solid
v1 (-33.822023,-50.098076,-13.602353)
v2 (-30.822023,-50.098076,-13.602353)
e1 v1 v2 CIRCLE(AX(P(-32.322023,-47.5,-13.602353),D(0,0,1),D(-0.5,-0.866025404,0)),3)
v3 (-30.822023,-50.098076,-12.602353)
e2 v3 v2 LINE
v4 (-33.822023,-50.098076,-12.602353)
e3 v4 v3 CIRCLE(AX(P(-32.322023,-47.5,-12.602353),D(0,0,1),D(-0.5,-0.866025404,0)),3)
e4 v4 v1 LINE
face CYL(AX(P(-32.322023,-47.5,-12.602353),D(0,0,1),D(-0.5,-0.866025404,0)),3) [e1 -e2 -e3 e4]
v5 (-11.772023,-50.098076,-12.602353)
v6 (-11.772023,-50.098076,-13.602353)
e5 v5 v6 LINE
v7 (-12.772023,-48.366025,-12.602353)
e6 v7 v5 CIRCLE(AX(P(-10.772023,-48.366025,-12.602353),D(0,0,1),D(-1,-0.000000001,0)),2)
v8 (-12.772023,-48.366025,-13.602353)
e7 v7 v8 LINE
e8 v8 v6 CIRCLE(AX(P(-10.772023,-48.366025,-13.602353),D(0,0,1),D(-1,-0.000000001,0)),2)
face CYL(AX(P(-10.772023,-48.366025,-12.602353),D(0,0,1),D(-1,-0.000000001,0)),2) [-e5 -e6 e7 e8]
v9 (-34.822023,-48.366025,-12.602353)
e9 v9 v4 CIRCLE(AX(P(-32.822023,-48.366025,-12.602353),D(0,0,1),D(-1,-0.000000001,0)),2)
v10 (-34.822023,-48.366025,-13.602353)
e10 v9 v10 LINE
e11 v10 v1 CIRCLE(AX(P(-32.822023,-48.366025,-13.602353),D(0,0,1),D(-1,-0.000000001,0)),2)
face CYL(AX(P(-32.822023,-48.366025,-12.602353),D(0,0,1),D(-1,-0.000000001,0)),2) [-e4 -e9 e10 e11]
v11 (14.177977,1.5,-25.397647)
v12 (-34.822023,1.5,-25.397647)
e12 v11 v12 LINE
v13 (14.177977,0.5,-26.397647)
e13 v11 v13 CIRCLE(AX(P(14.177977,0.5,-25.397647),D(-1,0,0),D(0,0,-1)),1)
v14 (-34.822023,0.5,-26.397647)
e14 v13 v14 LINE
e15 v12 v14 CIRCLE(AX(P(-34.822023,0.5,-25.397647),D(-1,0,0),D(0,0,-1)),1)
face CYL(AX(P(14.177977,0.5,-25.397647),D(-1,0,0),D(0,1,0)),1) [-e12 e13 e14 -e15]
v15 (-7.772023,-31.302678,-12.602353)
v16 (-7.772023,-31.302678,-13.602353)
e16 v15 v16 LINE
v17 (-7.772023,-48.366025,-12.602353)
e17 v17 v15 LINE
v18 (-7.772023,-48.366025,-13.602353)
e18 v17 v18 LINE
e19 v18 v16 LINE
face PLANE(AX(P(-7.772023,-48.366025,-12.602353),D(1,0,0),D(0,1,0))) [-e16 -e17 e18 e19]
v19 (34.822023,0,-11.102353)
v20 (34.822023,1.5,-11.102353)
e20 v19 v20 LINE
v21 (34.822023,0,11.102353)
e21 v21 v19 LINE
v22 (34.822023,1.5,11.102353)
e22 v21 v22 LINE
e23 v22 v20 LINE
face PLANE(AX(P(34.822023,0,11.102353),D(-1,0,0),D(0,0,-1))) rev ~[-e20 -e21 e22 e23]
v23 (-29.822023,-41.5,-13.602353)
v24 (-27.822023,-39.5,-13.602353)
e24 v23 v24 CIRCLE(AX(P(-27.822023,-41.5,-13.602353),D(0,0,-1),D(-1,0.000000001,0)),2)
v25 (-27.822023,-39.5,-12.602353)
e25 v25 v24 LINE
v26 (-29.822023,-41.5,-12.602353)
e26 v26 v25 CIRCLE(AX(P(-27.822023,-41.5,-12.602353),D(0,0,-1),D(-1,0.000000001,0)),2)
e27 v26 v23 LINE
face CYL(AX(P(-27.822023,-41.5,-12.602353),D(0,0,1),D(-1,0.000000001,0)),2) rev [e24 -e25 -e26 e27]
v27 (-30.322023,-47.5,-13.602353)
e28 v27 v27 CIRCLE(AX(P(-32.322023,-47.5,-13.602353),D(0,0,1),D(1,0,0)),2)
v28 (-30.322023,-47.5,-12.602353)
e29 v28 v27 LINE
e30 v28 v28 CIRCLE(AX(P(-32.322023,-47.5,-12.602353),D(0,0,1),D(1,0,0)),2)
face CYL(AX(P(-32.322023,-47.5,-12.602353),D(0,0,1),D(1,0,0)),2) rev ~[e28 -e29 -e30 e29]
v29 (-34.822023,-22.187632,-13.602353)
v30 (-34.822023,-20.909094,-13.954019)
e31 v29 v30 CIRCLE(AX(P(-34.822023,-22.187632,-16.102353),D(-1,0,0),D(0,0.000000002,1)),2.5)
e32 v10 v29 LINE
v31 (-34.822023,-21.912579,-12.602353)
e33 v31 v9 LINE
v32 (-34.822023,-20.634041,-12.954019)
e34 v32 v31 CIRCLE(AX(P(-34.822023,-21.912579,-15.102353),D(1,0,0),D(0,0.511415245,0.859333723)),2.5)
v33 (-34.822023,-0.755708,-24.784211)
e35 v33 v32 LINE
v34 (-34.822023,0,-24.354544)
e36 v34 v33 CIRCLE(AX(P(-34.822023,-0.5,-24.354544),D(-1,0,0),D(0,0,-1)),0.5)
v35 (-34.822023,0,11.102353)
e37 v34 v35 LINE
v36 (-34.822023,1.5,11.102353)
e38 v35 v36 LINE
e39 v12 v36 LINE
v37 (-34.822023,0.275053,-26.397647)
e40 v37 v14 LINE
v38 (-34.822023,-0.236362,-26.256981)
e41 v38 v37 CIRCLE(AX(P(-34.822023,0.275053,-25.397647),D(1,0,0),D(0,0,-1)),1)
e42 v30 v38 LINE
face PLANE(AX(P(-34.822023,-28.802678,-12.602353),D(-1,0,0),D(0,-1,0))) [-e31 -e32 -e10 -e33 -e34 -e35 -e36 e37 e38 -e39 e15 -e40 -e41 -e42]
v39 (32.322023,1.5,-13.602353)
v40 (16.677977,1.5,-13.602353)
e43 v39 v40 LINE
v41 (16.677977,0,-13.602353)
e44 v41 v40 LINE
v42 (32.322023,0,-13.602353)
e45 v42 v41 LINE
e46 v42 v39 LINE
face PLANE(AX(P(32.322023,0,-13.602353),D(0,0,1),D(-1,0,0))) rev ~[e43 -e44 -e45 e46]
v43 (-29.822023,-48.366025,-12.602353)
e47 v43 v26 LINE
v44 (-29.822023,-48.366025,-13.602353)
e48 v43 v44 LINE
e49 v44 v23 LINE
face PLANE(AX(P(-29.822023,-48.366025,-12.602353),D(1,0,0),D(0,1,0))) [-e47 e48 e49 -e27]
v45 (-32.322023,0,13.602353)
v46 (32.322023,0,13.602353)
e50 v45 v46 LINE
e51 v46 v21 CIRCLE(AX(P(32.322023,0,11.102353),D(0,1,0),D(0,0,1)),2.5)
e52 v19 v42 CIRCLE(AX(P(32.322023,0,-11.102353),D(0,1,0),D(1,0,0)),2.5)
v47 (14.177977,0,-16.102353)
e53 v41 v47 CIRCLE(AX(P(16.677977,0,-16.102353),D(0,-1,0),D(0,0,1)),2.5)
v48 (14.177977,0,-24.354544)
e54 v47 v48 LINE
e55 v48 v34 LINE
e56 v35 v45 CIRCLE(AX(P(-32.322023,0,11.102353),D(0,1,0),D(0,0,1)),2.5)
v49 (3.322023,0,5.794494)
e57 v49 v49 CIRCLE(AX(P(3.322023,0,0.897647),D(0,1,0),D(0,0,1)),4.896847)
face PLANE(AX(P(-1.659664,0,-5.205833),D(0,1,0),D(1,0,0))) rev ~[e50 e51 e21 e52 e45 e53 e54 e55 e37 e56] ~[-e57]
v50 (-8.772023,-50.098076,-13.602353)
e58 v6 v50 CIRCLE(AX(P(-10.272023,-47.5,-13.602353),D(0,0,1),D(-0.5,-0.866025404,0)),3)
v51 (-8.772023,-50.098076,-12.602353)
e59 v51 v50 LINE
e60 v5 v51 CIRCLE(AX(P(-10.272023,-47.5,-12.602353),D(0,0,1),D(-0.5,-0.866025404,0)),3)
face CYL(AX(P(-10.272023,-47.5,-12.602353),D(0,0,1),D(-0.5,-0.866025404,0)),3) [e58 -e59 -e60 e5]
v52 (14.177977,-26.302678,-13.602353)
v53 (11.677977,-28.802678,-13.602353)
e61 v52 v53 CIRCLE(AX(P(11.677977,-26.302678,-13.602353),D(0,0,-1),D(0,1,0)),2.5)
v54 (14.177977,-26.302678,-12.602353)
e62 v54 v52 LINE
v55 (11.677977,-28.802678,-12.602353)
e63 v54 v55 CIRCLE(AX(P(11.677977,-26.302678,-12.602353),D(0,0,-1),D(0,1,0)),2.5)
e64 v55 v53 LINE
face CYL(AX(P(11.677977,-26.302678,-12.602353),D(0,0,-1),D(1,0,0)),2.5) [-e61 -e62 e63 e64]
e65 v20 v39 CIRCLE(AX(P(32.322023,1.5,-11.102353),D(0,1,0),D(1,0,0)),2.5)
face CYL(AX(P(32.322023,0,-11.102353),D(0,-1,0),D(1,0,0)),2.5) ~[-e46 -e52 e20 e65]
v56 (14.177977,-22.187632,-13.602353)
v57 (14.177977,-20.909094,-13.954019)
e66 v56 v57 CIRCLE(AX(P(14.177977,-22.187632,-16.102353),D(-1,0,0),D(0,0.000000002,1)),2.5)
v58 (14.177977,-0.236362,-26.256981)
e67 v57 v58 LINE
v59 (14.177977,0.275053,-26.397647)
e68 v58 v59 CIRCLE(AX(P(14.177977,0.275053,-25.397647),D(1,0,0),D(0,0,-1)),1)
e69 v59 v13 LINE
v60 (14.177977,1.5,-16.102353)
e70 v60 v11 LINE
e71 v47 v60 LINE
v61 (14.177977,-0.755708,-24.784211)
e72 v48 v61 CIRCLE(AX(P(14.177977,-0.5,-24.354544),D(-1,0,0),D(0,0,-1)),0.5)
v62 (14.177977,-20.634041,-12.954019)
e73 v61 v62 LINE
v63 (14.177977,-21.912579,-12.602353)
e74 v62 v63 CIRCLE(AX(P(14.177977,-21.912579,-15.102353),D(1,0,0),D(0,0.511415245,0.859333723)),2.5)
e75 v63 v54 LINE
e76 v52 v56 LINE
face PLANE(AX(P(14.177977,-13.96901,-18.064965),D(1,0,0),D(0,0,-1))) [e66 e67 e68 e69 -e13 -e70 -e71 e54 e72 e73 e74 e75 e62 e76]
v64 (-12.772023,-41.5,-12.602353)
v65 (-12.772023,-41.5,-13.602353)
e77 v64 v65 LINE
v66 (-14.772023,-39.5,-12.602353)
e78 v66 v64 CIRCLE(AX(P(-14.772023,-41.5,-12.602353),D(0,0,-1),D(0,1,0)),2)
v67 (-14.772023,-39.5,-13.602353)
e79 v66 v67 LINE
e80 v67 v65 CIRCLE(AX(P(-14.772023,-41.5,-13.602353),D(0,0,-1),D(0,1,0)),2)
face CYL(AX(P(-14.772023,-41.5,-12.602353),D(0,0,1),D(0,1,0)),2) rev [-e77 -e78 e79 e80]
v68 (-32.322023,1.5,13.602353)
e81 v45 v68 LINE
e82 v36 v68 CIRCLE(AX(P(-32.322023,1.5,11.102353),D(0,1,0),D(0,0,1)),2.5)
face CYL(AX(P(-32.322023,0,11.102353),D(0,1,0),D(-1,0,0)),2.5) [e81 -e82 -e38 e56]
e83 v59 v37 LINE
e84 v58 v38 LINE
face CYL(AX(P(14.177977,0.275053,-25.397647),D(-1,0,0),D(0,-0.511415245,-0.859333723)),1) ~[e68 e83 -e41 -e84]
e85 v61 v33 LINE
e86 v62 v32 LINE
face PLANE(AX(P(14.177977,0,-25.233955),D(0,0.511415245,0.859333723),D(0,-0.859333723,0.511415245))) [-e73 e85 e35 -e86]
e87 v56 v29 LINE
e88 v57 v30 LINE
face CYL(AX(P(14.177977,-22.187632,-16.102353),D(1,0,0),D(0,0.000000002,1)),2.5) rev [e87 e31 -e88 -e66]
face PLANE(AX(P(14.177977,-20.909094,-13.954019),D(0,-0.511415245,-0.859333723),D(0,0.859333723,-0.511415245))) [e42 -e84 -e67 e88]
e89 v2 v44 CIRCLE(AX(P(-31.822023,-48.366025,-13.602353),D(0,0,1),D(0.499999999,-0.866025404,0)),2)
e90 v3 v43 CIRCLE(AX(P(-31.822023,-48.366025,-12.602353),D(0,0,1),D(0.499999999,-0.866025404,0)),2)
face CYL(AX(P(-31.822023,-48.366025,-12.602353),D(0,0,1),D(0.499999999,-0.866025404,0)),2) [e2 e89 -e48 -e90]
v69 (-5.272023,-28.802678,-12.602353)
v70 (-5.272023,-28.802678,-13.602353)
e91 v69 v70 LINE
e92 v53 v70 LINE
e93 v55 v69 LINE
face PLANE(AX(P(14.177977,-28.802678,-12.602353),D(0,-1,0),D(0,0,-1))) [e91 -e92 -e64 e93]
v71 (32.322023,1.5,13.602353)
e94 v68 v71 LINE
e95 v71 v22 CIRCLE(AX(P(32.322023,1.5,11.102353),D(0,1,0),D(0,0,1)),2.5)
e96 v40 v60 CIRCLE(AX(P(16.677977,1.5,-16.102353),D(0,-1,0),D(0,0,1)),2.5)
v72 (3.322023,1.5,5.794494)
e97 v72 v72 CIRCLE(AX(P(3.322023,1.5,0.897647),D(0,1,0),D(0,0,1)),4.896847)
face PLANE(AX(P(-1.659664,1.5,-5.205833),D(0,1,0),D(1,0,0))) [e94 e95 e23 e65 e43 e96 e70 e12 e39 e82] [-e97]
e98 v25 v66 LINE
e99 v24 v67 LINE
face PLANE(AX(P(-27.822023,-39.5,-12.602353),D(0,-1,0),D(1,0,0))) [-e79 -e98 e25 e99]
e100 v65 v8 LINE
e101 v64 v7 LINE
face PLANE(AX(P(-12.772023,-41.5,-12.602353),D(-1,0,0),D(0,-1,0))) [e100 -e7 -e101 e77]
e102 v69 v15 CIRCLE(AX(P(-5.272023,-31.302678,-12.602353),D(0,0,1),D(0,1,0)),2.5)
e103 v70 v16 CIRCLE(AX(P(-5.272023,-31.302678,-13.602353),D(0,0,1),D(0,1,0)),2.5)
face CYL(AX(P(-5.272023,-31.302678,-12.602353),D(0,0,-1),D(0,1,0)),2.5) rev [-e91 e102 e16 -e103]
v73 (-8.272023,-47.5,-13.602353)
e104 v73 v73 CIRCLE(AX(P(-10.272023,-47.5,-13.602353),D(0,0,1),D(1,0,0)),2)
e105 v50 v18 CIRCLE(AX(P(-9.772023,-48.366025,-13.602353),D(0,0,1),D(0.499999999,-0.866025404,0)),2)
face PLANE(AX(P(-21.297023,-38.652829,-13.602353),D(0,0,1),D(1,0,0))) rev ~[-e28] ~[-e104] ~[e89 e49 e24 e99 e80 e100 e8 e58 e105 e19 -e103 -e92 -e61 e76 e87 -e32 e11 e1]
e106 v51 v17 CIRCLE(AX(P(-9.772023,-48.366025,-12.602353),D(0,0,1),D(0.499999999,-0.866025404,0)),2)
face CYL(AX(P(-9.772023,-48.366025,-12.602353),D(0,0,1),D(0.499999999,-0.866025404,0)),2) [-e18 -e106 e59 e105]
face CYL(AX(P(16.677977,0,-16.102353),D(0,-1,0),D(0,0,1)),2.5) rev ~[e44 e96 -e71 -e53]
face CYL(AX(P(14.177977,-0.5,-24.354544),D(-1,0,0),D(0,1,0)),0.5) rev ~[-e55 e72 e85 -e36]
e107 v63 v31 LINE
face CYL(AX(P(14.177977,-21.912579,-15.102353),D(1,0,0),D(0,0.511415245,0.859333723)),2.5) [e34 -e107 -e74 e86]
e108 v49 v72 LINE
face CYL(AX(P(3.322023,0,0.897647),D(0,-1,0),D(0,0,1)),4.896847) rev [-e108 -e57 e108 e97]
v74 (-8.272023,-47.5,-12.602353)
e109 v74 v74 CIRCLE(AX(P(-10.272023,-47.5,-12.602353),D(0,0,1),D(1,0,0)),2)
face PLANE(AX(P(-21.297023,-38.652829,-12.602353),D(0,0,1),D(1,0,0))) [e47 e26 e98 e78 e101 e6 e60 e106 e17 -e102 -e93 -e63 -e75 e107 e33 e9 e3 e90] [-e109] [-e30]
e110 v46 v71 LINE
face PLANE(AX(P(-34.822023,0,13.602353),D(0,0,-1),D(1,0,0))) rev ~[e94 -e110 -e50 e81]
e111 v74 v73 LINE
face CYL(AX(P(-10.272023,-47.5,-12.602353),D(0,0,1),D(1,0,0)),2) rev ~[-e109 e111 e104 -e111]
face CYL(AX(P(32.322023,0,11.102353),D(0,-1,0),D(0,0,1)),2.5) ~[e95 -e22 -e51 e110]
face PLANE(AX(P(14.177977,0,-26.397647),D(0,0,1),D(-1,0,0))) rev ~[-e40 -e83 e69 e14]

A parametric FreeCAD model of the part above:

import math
import FreeCAD as App
import Part
import Sketcher
from FreeCAD import Vector


def edges_at(feature, points):
    """Names of the edges that pass closest to the given points."""
    edges = feature.Shape.Edges
    near = lambda p: min(range(len(edges)), key=lambda i: edges[i].distToShape(Part.Vertex(*p))[0])
    return sorted({f"Edge{near(p) + 1}" for p in points})

doc = App.newDocument("Part")
body = doc.addObject("PartDesign::Body", "Body")

sketch1 = body.newObject("Sketcher::SketchObject", "Sketch")
sketch1.AttachmentSupport = (doc.getObject("XZ_Plane"), [""])
sketch1.MapMode = "FlatFace"
sketch1.addGeometry(Part.ArcOfCircle(Part.Circle(Vector(32.3, 11.1, 0), Vector(0, 0, 1), 2.5), math.radians(0), math.radians(90)), False)
sketch1.addGeometry(Part.LineSegment(Vector(34.8, 11.1, 0), Vector(34.8, -11.1, 0)), False)
sketch1.addGeometry(Part.ArcOfCircle(Part.Circle(Vector(32.3, -11.1, 0), Vector(0, 0, 1), 2.5), math.radians(-90), math.radians(0)), False)
sketch1.addGeometry(Part.LineSegment(Vector(32.3, -13.6, 0), Vector(16.7, -13.6, 0)), False)
sketch1.addGeometry(Part.ArcOfCircle(Part.Circle(Vector(16.7, -16.1, 0), Vector(0, 0, 1), 2.5), math.radians(90), math.radians(180)), False)
sketch1.addGeometry(Part.LineSegment(Vector(14.2, -16.1, 0), Vector(14.2, -26.4, 0)), False)
sketch1.addGeometry(Part.LineSegment(Vector(14.2, -26.4, 0), Vector(-34.8, -26.4, 0)), False)
sketch1.addGeometry(Part.LineSegment(Vector(-34.8, -26.4, 0), Vector(-34.8, 13.6, 0)), False)
sketch1.addGeometry(Part.LineSegment(Vector(-34.8, 13.6, 0), Vector(32.3, 13.6, 0)), False)
sketch1.addGeometry(Part.Circle(Vector(3.3, 0.9, 0), Vector(0, 0, 1), 4.9), False)
sketch1.addConstraint(Sketcher.Constraint("Tangent", 0, 1, 1, 1))
sketch1.addConstraint(Sketcher.Constraint("Tangent", 1, 2, 2, 2))
sketch1.addConstraint(Sketcher.Constraint("Tangent", 2, 1, 3, 1))
sketch1.addConstraint(Sketcher.Constraint("Tangent", 3, 2, 4, 1))
sketch1.addConstraint(Sketcher.Constraint("Tangent", 4, 2, 5, 1))
sketch1.addConstraint(Sketcher.Constraint("Coincident", 5, 2, 6, 1))
sketch1.addConstraint(Sketcher.Constraint("Coincident", 6, 2, 7, 1))
sketch1.addConstraint(Sketcher.Constraint("Coincident", 7, 2, 8, 1))
sketch1.addConstraint(Sketcher.Constraint("Tangent", 8, 2, 0, 2))
sketch1.addConstraint(Sketcher.Constraint("Vertical", 1))
sketch1.addConstraint(Sketcher.Constraint("Horizontal", 3))
sketch1.addConstraint(Sketcher.Constraint("Vertical", 5))
sketch1.addConstraint(Sketcher.Constraint("Horizontal", 6))
sketch1.addConstraint(Sketcher.Constraint("Vertical", 7))
sketch1.addConstraint(Sketcher.Constraint("Horizontal", 8))
sketch1.addConstraint(Sketcher.Constraint("Equal", 0, 2))
sketch1.addConstraint(Sketcher.Constraint("Equal", 2, 4))
sketch1.addConstraint(Sketcher.Constraint("Radius", 0, 2.5))
sketch1.addConstraint(Sketcher.Constraint("DistanceX", 6, 2, 6, 1, 49.0))
sketch1.addConstraint(Sketcher.Constraint("DistanceY", 7, 1, 7, 2, 40.0))
sketch1.addConstraint(Sketcher.Constraint("DistanceY", 4, 3, 9, 3, 17.0))
sketch1.addConstraint(Sketcher.Constraint("DistanceX", 9, 3, 0, 3, 29.0))
sketch1.addConstraint(Sketcher.Constraint("Diameter", 9, 9.793694))
sketch1.addConstraint(Sketcher.Constraint("DistanceX", 3, 2, 3, 1, 15.644047))
sketch1.addConstraint(Sketcher.Constraint("DistanceY", 1, 2, 1, 1, 22.204706))
sketch1.addConstraint(Sketcher.Constraint("DistanceX", -1, 1, 0, 3, 32.322023))
sketch1.addConstraint(Sketcher.Constraint("DistanceY", -1, 1, 0, 3, 11.102353))
pad1 = body.newObject("PartDesign::Pad", "Pad")
pad1.Profile = sketch1
pad1.Length = 1.5
pad1.Reversed = True

sketch2 = body.newObject("Sketcher::SketchObject", "Sketch001")
sketch2.AttachmentSupport = (doc.getObject("YZ_Plane"), [""])
sketch2.MapMode = "FlatFace"
sketch2.AttachmentOffset = App.Placement(Vector(0, 0, 14.177977), App.Rotation())
sketch2.addGeometry(Part.LineSegment(Vector(0, -25.2, 0), Vector(-20.6, -13, 0)), False)
sketch2.addGeometry(Part.ArcOfCircle(Part.Circle(Vector(-21.9, -15.1, 0), Vector(0, 0, 1), 2.5), math.radians(59), math.radians(90)), False)
sketch2.addGeometry(Part.LineSegment(Vector(-21.9, -12.6, 0), Vector(-28.8, -12.6, 0)), False)
sketch2.addGeometry(Part.LineSegment(Vector(-28.8, -12.6, 0), Vector(-28.8, -13.6, 0)), False)
sketch2.addGeometry(Part.LineSegment(Vector(-28.8, -13.6, 0), Vector(-22.2, -13.6, 0)), False)
sketch2.addGeometry(Part.ArcOfCircle(Part.Circle(Vector(-22.2, -16.1, 0), Vector(0, 0, 1), 2.5), math.radians(59), math.radians(90)), False)
sketch2.addGeometry(Part.LineSegment(Vector(-20.9, -14, 0), Vector(0, -26.4, 0)), False)
sketch2.addGeometry(Part.LineSegment(Vector(0, -26.4, 0), Vector(0, -25.2, 0)), False)
sketch2.addConstraint(Sketcher.Constraint("Tangent", 0, 2, 1, 1))
sketch2.addConstraint(Sketcher.Constraint("Tangent", 1, 2, 2, 1))
sketch2.addConstraint(Sketcher.Constraint("Coincident", 2, 2, 3, 1))
sketch2.addConstraint(Sketcher.Constraint("Coincident", 3, 2, 4, 1))
sketch2.addConstraint(Sketcher.Constraint("Tangent", 4, 2, 5, 2))
sketch2.addConstraint(Sketcher.Constraint("Tangent", 5, 1, 6, 1))
sketch2.addConstraint(Sketcher.Constraint("Coincident", 6, 2, 7, 1))
sketch2.addConstraint(Sketcher.Constraint("Coincident", 7, 2, 0, 1))
sketch2.addConstraint(Sketcher.Constraint("Horizontal", 2))
sketch2.addConstraint(Sketcher.Constraint("Vertical", 3))
sketch2.addConstraint(Sketcher.Constraint("Horizontal", 4))
sketch2.addConstraint(Sketcher.Constraint("Vertical", 7))
sketch2.addConstraint(Sketcher.Constraint("Equal", 1, 5))
sketch2.addConstraint(Sketcher.Constraint("PointOnObject", 6, 2, -2))
sketch2.addConstraint(Sketcher.Constraint("Parallel", 0, 6))
sketch2.addConstraint(Sketcher.Constraint("Radius", 1, 2.5))
sketch2.addConstraint(Sketcher.Constraint("DistanceY", 3, 2, 3, 1, 1.0))
sketch2.addConstraint(Sketcher.Constraint("DistanceX", 2, 2, 2, 1, 6.890099))
sketch2.addConstraint(Sketcher.Constraint("DistanceY", 7, 2, 5, 3, 9.131602))
sketch2.addConstraint(Sketcher.Constraint("Distance", 6, 24.331751))
sketch2.addConstraint(Sketcher.Constraint("DistanceX", 4, 1, 4, 2, 6.615046))
sketch2.addConstraint(Sketcher.Constraint("DistanceY", 0, 2, -1, 1, 12.954019))
pad2 = body.newObject("PartDesign::Pad", "Pad001")
pad2.Profile = sketch2
pad2.Length = 49
pad2.Reversed = True
doc.recompute()

fillet = body.newObject("PartDesign::Fillet", "Fillet")
fillet.Base = (pad2, edges_at(pad2, [(-10.322, 0, -26.398), (-10.322, 1.5, -26.398)]))
fillet.Radius = 1
doc.recompute()

fillet2 = body.newObject("PartDesign::Fillet", "Fillet001")
fillet2.Base = (fillet, edges_at(fillet, [(-10.322, 0, -25.234)]))
fillet2.Radius = 0.5

sketch3 = body.newObject("Sketcher::SketchObject", "Sketch002")
sketch3.AttachmentSupport = (doc.getObject("XY_Plane"), [""])
sketch3.MapMode = "FlatFace"
sketch3.AttachmentOffset = App.Placement(Vector(0, 0, -12.602353), App.Rotation())
sketch3.addGeometry(Part.LineSegment(Vector(-27.8, -39.5, 0), Vector(-14.8, -39.5, 0)), False)
sketch3.addGeometry(Part.ArcOfCircle(Part.Circle(Vector(-14.8, -41.5, 0), Vector(0, 0, 1), 2), math.radians(0), math.radians(90)), False)
sketch3.addGeometry(Part.LineSegment(Vector(-12.8, -41.5, 0), Vector(-12.8, -48.4, 0)), False)
sketch3.addGeometry(Part.ArcOfCircle(Part.Circle(Vector(-10.8, -48.4, 0), Vector(0, 0, 1), 2), math.radians(-180), math.radians(-120)), False)
sketch3.addGeometry(Part.ArcOfCircle(Part.Circle(Vector(-10.3, -47.5, 0), Vector(0, 0, 1), 3), math.radians(-120), math.radians(-60)), False)
sketch3.addGeometry(Part.ArcOfCircle(Part.Circle(Vector(-9.8, -48.4, 0), Vector(0, 0, 1), 2), math.radians(-60), math.radians(0)), False)
sketch3.addGeometry(Part.LineSegment(Vector(-7.8, -48.4, 0), Vector(-7.8, -28.8, 0)), False)
sketch3.addGeometry(Part.LineSegment(Vector(-7.8, -28.8, 0), Vector(-34.8, -28.8, 0)), False)
sketch3.addGeometry(Part.LineSegment(Vector(-34.8, -28.8, 0), Vector(-34.8, -48.4, 0)), False)
sketch3.addGeometry(Part.ArcOfCircle(Part.Circle(Vector(-32.8, -48.4, 0), Vector(0, 0, 1), 2), math.radians(-180), math.radians(-120)), False)
sketch3.addGeometry(Part.ArcOfCircle(Part.Circle(Vector(-32.3, -47.5, 0), Vector(0, 0, 1), 3), math.radians(-120), math.radians(-60)), False)
sketch3.addGeometry(Part.ArcOfCircle(Part.Circle(Vector(-31.8, -48.4, 0), Vector(0, 0, 1), 2), math.radians(-60), math.radians(0)), False)
sketch3.addGeometry(Part.LineSegment(Vector(-29.8, -48.4, 0), Vector(-29.8, -41.5, 0)), False)
sketch3.addGeometry(Part.ArcOfCircle(Part.Circle(Vector(-27.8, -41.5, 0), Vector(0, 0, 1), 2), math.radians(90), math.radians(180)), False)
sketch3.addGeometry(Part.Circle(Vector(-32.3, -47.5, 0), Vector(0, 0, 1), 2), False)
sketch3.addGeometry(Part.Circle(Vector(-10.3, -47.5, 0), Vector(0, 0, 1), 2), False)
sketch3.addConstraint(Sketcher.Constraint("Tangent", 0, 2, 1, 2))
sketch3.addConstraint(Sketcher.Constraint("Tangent", 1, 1, 2, 1))
sketch3.addConstraint(Sketcher.Constraint("Tangent", 2, 2, 3, 1))
sketch3.addConstraint(Sketcher.Constraint("Tangent", 3, 2, 4, 1))
sketch3.addConstraint(Sketcher.Constraint("Tangent", 4, 2, 5, 1))
sketch3.addConstraint(Sketcher.Constraint("Tangent", 5, 2, 6, 1))
sketch3.addConstraint(Sketcher.Constraint("Coincident", 6, 2, 7, 1))
sketch3.addConstraint(Sketcher.Constraint("Coincident", 7, 2, 8, 1))
sketch3.addConstraint(Sketcher.Constraint("Tangent", 8, 2, 9, 1))
sketch3.addConstraint(Sketcher.Constraint("Tangent", 9, 2, 10, 1))
sketch3.addConstraint(Sketcher.Constraint("Tangent", 10, 2, 11, 1))
sketch3.addConstraint(Sketcher.Constraint("Tangent", 11, 2, 12, 1))
sketch3.addConstraint(Sketcher.Constraint("Tangent", 12, 2, 13, 2))
sketch3.addConstraint(Sketcher.Constraint("Tangent", 13, 1, 0, 1))
sketch3.addConstraint(Sketcher.Constraint("Horizontal", 0))
sketch3.addConstraint(Sketcher.Constraint("Vertical", 2))
sketch3.addConstraint(Sketcher.Constraint("Vertical", 6))
sketch3.addConstraint(Sketcher.Constraint("Horizontal", 7))
sketch3.addConstraint(Sketcher.Constraint("Vertical", 8))
sketch3.addConstraint(Sketcher.Constraint("Vertical", 12))
sketch3.addConstraint(Sketcher.Constraint("Coincident", 14, 3, 10, 3))
sketch3.addConstraint(Sketcher.Constraint("Coincident", 15, 3, 4, 3))
sketch3.addConstraint(Sketcher.Constraint("Equal", 1, 3))
sketch3.addConstraint(Sketcher.Constraint("Equal", 3, 5))
sketch3.addConstraint(Sketcher.Constraint("Equal", 5, 9))
sketch3.addConstraint(Sketcher.Constraint("Equal", 4, 10))
sketch3.addConstraint(Sketcher.Constraint("Equal", 9, 11))
sketch3.addConstraint(Sketcher.Constraint("Equal", 11, 13))
sketch3.addConstraint(Sketcher.Constraint("Equal", 13, 14))
sketch3.addConstraint(Sketcher.Constraint("Equal", 14, 15))
sketch3.addConstraint(Sketcher.Constraint("Horizontal", 3, 3, 5, 3))
sketch3.addConstraint(Sketcher.Constraint("Horizontal", 5, 3, 9, 3))
sketch3.addConstraint(Sketcher.Constraint("Horizontal", 4, 3, 10, 3))
sketch3.addConstraint(Sketcher.Constraint("Horizontal", 9, 3, 11, 3))
sketch3.addConstraint(Sketcher.Constraint("Diameter", 14, 4.0))
sketch3.addConstraint(Sketcher.Constraint("Radius", 4, 3.0))
sketch3.addConstraint(Sketcher.Constraint("DistanceY", 4, 3, 1, 3, 6.0))
sketch3.addConstraint(Sketcher.Constraint("DistanceX", 3, 3, 5, 3, 1.0))
sketch3.addConstraint(Sketcher.Constraint("DistanceX", 0, 1, 0, 2, 13.05))
sketch3.addConstraint(Sketcher.Constraint("DistanceY", 1, 3, -1, 1, 41.5))
sketch3.addConstraint(Sketcher.Constraint("DistanceY", 6, 1, 6, 2, 19.563347))
sketch3.addConstraint(Sketcher.Constraint("DistanceX", 1, 3, -1, 1, 14.772023))
pad3 = body.newObject("PartDesign::Pad", "Pad002")
pad3.Profile = sketch3
pad3.Length = 1
pad3.Reversed = True
doc.recompute()

fillet3 = body.newObject("PartDesign::Fillet", "Fillet002")
fillet3.Base = (pad3, edges_at(pad3, [(14.178, -28.803, -13.102), (-7.772, -28.803, -13.102)]))
fillet3.Radius = 2.5
doc.recompute()

fillet4 = body.newObject("PartDesign::Fillet", "Fillet003")
fillet4.Base = (fillet3, edges_at(fillet3, [(-34.822, 0.75, 13.602)]))
fillet4.Radius = 2.5

doc.recompute()
